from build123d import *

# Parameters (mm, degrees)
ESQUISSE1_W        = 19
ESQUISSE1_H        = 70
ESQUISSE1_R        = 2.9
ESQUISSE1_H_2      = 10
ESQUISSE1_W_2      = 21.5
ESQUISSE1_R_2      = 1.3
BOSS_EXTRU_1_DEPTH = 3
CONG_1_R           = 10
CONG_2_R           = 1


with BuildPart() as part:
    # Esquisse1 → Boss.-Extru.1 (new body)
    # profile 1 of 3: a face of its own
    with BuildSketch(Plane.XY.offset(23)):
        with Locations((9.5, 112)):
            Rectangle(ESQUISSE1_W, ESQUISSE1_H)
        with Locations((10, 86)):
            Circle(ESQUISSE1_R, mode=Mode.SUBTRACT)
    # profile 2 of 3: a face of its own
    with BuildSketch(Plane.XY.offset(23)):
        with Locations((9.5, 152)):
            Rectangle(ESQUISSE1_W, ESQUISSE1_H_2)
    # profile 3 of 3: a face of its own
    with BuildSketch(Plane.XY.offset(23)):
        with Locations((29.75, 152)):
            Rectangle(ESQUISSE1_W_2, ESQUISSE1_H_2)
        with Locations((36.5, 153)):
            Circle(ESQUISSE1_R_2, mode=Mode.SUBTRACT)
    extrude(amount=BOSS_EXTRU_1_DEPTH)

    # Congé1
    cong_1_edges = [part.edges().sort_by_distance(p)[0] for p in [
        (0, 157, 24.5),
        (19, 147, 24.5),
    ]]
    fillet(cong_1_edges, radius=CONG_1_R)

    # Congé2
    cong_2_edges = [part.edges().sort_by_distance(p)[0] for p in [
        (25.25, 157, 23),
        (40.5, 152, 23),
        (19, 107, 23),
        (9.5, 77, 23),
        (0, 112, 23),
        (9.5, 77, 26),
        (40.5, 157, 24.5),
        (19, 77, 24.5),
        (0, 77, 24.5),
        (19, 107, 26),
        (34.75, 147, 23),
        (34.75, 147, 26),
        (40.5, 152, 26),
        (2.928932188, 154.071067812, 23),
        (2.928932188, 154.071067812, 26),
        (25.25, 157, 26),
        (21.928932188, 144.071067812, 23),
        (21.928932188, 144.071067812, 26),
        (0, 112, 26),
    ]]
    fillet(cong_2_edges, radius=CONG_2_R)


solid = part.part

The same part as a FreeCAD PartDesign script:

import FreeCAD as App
import Part
import Sketcher

V = App.Vector
Q = App.Units.Quantity


def edges_at(feature, points):
    """Names of the edges that pass closest to the given points."""
    edges = feature.Shape.Edges
    near = lambda p: min(range(len(edges)), key=lambda i: edges[i].distToShape(Part.Vertex(*p))[0])
    return sorted({f"Edge{near(p) + 1}" for p in points})

doc = App.newDocument("Part")
params = doc.addObject("Spreadsheet::Sheet", "Params")
for row, (alias, value) in enumerate([
    ("sketch1_diameter", "5.8 mm"),
    ("sketch1_diameter2", "2.6 mm"),
    ("sketch1_width", "19 mm"),
    ("sketch1_height", "70 mm"),
    ("sketch1_height2", "10 mm"),
    ("pad1_length", "3 mm"),
    ("fillet_radius", "10 mm"),
    ("fillet2_radius", "1 mm"),
], start=1):
    params.set(f"A{row}", alias)
    params.set(f"B{row}", "=" + value)
    params.setAlias(f"B{row}", alias)

body = doc.addObject("PartDesign::Body", "Body")

# Sketch on XY plane
sketch1 = doc.addObject("Sketcher::SketchObject", "Sketch")
body.addObject(sketch1)
sketch1.AttachmentSupport = (doc.XY_Plane, [""])
sketch1.MapMode = "FlatFace"
sketch1.AttachmentOffset = App.Placement(V(0, 0, 23), App.Rotation())
sketch1.addGeometry([
    Part.LineSegment(V(0, 77, 0), V(19, 77, 0)),  # 0
    Part.LineSegment(V(19, 77, 0), V(19, 147, 0)),  # 1
    Part.LineSegment(V(19, 147, 0), V(40.5, 147, 0)),  # 2
    Part.LineSegment(V(40.5, 147, 0), V(40.5, 157, 0)),  # 3
    Part.LineSegment(V(40.5, 157, 0), V(0, 157, 0)),  # 4
    Part.LineSegment(V(0, 157, 0), V(0, 77, 0)),  # 5
    Part.Circle(V(10, 86, 0), V(0, 0, 1), 2.9),  # 6
    Part.Circle(V(36.5, 153, 0), V(0, 0, 1), 1.3),  # 7
], False)
sketch1.addConstraint([
    Sketcher.Constraint("Coincident", 0, 2, 1, 1),
    Sketcher.Constraint("Coincident", 1, 2, 2, 1),
    Sketcher.Constraint("Coincident", 2, 2, 3, 1),
    Sketcher.Constraint("Coincident", 3, 2, 4, 1),
    Sketcher.Constraint("Coincident", 4, 2, 5, 1),
    Sketcher.Constraint("Coincident", 5, 2, 0, 1),
    Sketcher.Constraint("Horizontal", 0),
    Sketcher.Constraint("Vertical", 1),
    Sketcher.Constraint("Horizontal", 2),
    Sketcher.Constraint("Vertical", 3),
    Sketcher.Constraint("Horizontal", 4),
    Sketcher.Constraint("Vertical", 5),
    Sketcher.Constraint("PointOnObject", 4, 2, -2),
    Sketcher.Constraint("Diameter", 6, Q("5.8 mm")),
    Sketcher.Constraint("Diameter", 7, Q("2.6 mm")),
    Sketcher.Constraint("DistanceX", 0, 1, 0, 2, Q("19 mm")),
    Sketcher.Constraint("DistanceY", 1, 1, 1, 2, Q("70 mm")),
    Sketcher.Constraint("DistanceY", 3, 1, 3, 2, Q("10 mm")),
    Sketcher.Constraint("DistanceX", 2, 1, 2, 2, Q("21.5 mm")),
    Sketcher.Constraint("DistanceX", -1, 1, 6, 3, Q("10 mm")),
    Sketcher.Constraint("DistanceY", -1, 1, 6, 3, Q("86 mm")),
    Sketcher.Constraint("DistanceY", -1, 1, 7, 3, Q("153 mm")),
    Sketcher.Constraint("DistanceY", -1, 1, 0, 2, Q("77 mm")),
    Sketcher.Constraint("DistanceX", 7, 3, 2, 2, Q("4 mm")),
])
sketch1.setExpression("Constraints[13]", "Params.sketch1_diameter")
sketch1.setExpression("Constraints[14]", "Params.sketch1_diameter2")
sketch1.setExpression("Constraints[15]", "Params.sketch1_width")
sketch1.setExpression("Constraints[16]", "Params.sketch1_height")
sketch1.setExpression("Constraints[17]", "Params.sketch1_height2")
pad1 = doc.addObject("PartDesign::Pad", "Pad")
body.addObject(pad1)
pad1.Profile = sketch1
pad1.setExpression("Length", "Params.pad1_length")
doc.recompute()

fillet = doc.addObject("PartDesign::Fillet", "Fillet")
body.addObject(fillet)
fillet.Base = (pad1, edges_at(pad1, [(0, 157, 24.5), (19, 147, 24.5)]))
fillet.setExpression("Radius", "Params.fillet_radius")
doc.recompute()

fillet2 = doc.addObject("PartDesign::Fillet", "Fillet001")
body.addObject(fillet2)
fillet2.Base = (fillet, edges_at(fillet, [
    (25.25, 157, 23),
    (40.5, 152, 23),
    (19, 107, 23),
    (9.5, 77, 23),
    (0, 112, 23),
    (9.5, 77, 26),
    (40.5, 157, 24.5),
    (19, 77, 24.5),
    (0, 77, 24.5),
    (19, 107, 26),
    (34.75, 147, 23),
    (34.75, 147, 26),
    (40.5, 152, 26),
    (2.929, 154.071, 23),
    (2.929, 154.071, 26),
    (25.25, 157, 26),
    (21.929, 144.071, 23),
    (21.929, 144.071, 26),
    (0, 112, 26),
]))
fillet2.setExpression("Radius", "Params.fillet2_radius")

doc.recompute()
